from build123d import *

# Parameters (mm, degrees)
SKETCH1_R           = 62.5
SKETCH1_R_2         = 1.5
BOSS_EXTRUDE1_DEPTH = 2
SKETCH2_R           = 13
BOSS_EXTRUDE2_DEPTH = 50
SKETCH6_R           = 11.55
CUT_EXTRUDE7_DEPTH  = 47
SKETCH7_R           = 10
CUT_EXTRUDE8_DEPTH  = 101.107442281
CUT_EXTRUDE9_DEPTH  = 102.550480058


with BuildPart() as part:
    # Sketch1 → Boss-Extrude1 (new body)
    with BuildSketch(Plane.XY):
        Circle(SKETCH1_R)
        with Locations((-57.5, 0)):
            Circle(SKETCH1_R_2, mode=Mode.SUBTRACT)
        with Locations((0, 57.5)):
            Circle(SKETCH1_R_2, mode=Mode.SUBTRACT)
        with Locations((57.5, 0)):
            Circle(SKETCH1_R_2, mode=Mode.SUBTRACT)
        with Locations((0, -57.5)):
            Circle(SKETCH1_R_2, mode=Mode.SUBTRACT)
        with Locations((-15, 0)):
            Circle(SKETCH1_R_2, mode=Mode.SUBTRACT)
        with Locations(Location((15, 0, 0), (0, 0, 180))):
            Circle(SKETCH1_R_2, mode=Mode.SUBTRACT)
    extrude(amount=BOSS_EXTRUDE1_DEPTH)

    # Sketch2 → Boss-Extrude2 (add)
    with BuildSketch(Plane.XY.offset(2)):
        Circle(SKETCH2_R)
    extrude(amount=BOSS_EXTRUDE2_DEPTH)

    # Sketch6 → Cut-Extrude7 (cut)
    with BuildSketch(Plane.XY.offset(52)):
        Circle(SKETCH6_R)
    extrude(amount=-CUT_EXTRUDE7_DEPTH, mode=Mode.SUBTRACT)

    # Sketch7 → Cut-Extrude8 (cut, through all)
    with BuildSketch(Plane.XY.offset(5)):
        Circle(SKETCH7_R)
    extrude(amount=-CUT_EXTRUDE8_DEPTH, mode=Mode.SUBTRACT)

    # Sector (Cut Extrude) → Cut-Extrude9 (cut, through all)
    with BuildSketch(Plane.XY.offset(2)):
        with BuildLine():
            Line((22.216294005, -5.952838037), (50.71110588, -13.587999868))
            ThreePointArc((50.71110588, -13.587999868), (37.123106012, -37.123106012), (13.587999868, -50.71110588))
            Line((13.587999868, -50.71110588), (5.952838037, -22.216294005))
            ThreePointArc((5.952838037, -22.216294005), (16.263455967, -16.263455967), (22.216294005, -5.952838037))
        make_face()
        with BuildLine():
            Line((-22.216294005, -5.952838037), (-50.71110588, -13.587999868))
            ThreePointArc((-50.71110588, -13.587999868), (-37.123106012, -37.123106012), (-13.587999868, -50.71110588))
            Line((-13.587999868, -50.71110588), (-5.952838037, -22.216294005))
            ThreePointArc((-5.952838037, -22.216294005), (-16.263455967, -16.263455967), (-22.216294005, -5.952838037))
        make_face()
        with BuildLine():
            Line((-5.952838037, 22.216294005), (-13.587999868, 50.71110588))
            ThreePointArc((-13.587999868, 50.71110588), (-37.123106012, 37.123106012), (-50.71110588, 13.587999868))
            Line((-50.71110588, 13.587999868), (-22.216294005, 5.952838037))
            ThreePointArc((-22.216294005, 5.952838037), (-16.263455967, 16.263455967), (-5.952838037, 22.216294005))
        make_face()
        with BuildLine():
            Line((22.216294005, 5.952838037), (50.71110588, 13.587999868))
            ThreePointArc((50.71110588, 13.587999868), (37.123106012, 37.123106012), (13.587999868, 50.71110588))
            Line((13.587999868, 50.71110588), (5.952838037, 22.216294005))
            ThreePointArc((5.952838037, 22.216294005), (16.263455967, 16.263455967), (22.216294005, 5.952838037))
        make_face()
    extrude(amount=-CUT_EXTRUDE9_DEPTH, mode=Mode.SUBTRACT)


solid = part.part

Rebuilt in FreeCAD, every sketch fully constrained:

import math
import FreeCAD as App
import Part
import Sketcher

V = App.Vector
Q = App.Units.Quantity

doc = App.newDocument("Part")
body = doc.addObject("PartDesign::Body", "Body")

sketch1 = doc.addObject("Sketcher::SketchObject", "Sketch")
body.addObject(sketch1)
sketch1.AttachmentSupport = (doc.XY_Plane, [""])
sketch1.MapMode = "FlatFace"
sketch1.addGeometry(Part.Circle(V(0, 0, 0), V(0, 0, 1), 62.5), False)
sketch1.addGeometry(Part.Circle(V(0, -57.5, 0), V(0, 0, 1), 1.5), False)
sketch1.addGeometry(Part.Circle(V(-57.5, 0, 0), V(0, 0, 1), 1.5), False)
sketch1.addGeometry(Part.Circle(V(-15, 0, 0), V(0, 0, 1), 1.5), False)
sketch1.addGeometry(Part.Circle(V(15, 0, 0), V(0, 0, 1), 1.5), False)
sketch1.addGeometry(Part.Circle(V(57.5, 0, 0), V(0, 0, 1), 1.5), False)
sketch1.addGeometry(Part.Circle(V(0, 57.5, 0), V(0, 0, 1), 1.5), False)
sketch1.addConstraint(Sketcher.Constraint("Coincident", 0, 3, -1, 1))
sketch1.addConstraint(Sketcher.Constraint("Equal", 1, 2))
sketch1.addConstraint(Sketcher.Constraint("Equal", 2, 3))
sketch1.addConstraint(Sketcher.Constraint("Equal", 3, 4))
sketch1.addConstraint(Sketcher.Constraint("Equal", 4, 5))
sketch1.addConstraint(Sketcher.Constraint("Equal", 5, 6))
sketch1.addConstraint(Sketcher.Constraint("Symmetric", 3, 3, 4, 3, -1, 1))
sketch1.addConstraint(Sketcher.Constraint("Symmetric", 2, 3, 5, 3, -1, 1))
sketch1.addConstraint(Sketcher.Constraint("Symmetric", 1, 3, 6, 3, -1, 1))
sketch1.addConstraint(Sketcher.Constraint("PointOnObject", 1, 3, -2))
sketch1.addConstraint(Sketcher.Constraint("PointOnObject", 2, 3, -1))
sketch1.addConstraint(Sketcher.Constraint("PointOnObject", 3, 3, -1))
sketch1.addConstraint(Sketcher.Constraint("Diameter", 0, Q("125 mm")))
sketch1.addConstraint(Sketcher.Constraint("Diameter", 1, Q("3 mm")))
sketch1.addConstraint(Sketcher.Constraint("DistanceX", 3, 3, -1, 1, Q("15 mm")))
sketch1.addConstraint(Sketcher.Constraint("DistanceX", 2, 3, 5, 3, Q("115 mm")))
sketch1.addConstraint(Sketcher.Constraint("DistanceY", 1, 3, -1, 1, Q("57.5 mm")))
pad1 = doc.addObject("PartDesign::Pad", "Pad")
body.addObject(pad1)
pad1.Profile = sketch1
pad1.Length = 2

sketch2 = doc.addObject("Sketcher::SketchObject", "Sketch001")
body.addObject(sketch2)
sketch2.AttachmentSupport = (doc.XY_Plane, [""])
sketch2.MapMode = "FlatFace"
sketch2.AttachmentOffset = App.Placement(V(0, 0, 2), App.Rotation())
sketch2.addGeometry(Part.Circle(V(0, 0, 0), V(0, 0, 1), 13), False)
sketch2.addConstraint(Sketcher.Constraint("Coincident", 0, 3, -1, 1))
sketch2.addConstraint(Sketcher.Constraint("Diameter", 0, Q("26 mm")))
pad2 = doc.addObject("PartDesign::Pad", "Pad001")
body.addObject(pad2)
pad2.Profile = sketch2
pad2.Length = 50

sketch3 = doc.addObject("Sketcher::SketchObject", "Sketch002")
body.addObject(sketch3)
sketch3.AttachmentSupport = (doc.XY_Plane, [""])
sketch3.MapMode = "FlatFace"
sketch3.AttachmentOffset = App.Placement(V(0, 0, 52), App.Rotation())
sketch3.addGeometry(Part.Circle(V(0, 0, 0), V(0, 0, 1), 11.55), False)
sketch3.addConstraint(Sketcher.Constraint("Coincident", 0, 3, -1, 1))
sketch3.addConstraint(Sketcher.Constraint("Diameter", 0, Q("23.1 mm")))
pocket1 = doc.addObject("PartDesign::Pocket", "Pocket")
body.addObject(pocket1)
pocket1.Profile = sketch3
pocket1.Length = 47

sketch4 = doc.addObject("Sketcher::SketchObject", "Sketch003")
body.addObject(sketch4)
sketch4.AttachmentSupport = (doc.XY_Plane, [""])
sketch4.MapMode = "FlatFace"
sketch4.AttachmentOffset = App.Placement(V(0, 0, 5), App.Rotation())
sketch4.addGeometry(Part.Circle(V(0, 0, 0), V(0, 0, 1), 10), False)
sketch4.addConstraint(Sketcher.Constraint("Coincident", 0, 3, -1, 1))
sketch4.addConstraint(Sketcher.Constraint("Diameter", 0, Q("20 mm")))
pocket2 = doc.addObject("PartDesign::Pocket", "Pocket001")
body.addObject(pocket2)
pocket2.Profile = sketch4
pocket2.Type = "ThroughAll"

sketch5 = doc.addObject("Sketcher::SketchObject", "Sketch004")
body.addObject(sketch5)
sketch5.AttachmentSupport = (doc.XY_Plane, [""])
sketch5.MapMode = "FlatFace"
sketch5.AttachmentOffset = App.Placement(V(0, 0, 2), App.Rotation())
sketch5.addGeometry(Part.LineSegment(V(50.711106, -13.588, 0), V(22.216294, -5.952838, 0)), False)
sketch5.addGeometry(Part.ArcOfCircle(Part.Circle(V(0, 0, 0), V(0, 0, 1), 23), math.radians(-75), math.radians(-15)), False)
sketch5.addGeometry(Part.LineSegment(V(5.952838, -22.216294, 0), V(13.588, -50.711106, 0)), False)
sketch5.addGeometry(Part.ArcOfCircle(Part.Circle(V(0, 0, 0), V(0, 0, 1), 52.5), math.radians(-75), math.radians(-15)), False)
sketch5.addGeometry(Part.LineSegment(V(-22.216294, -5.952838, 0), V(-50.711106, -13.588, 0)), False)
sketch5.addGeometry(Part.ArcOfCircle(Part.Circle(V(0, 0, 0), V(0, 0, 1), 52.5), math.radians(-165), math.radians(-105)), False)
sketch5.addGeometry(Part.LineSegment(V(-13.588, -50.711106, 0), V(-5.952838, -22.216294, 0)), False)
sketch5.addGeometry(Part.ArcOfCircle(Part.Circle(V(0, 0, 0), V(0, 0, 1), 23), math.radians(-165), math.radians(-105)), False)
sketch5.addGeometry(Part.LineSegment(V(-5.952838, 22.216294, 0), V(-13.588, 50.711106, 0)), False)
sketch5.addGeometry(Part.ArcOfCircle(Part.Circle(V(0, 0, 0), V(0, 0, 1), 52.5), math.radians(105), math.radians(165)), False)
sketch5.addGeometry(Part.LineSegment(V(-50.711106, 13.588, 0), V(-22.216294, 5.952838, 0)), False)
sketch5.addGeometry(Part.ArcOfCircle(Part.Circle(V(0, 0, 0), V(0, 0, 1), 23), math.radians(105), math.radians(165)), False)
sketch5.addGeometry(Part.LineSegment(V(22.216294, 5.952838, 0), V(50.711106, 13.588, 0)), False)
sketch5.addGeometry(Part.ArcOfCircle(Part.Circle(V(0, 0, 0), V(0, 0, 1), 52.5), math.radians(15), math.radians(75)), False)
sketch5.addGeometry(Part.LineSegment(V(13.588, 50.711106, 0), V(5.952838, 22.216294, 0)), False)
sketch5.addGeometry(Part.ArcOfCircle(Part.Circle(V(0, 0, 0), V(0, 0, 1), 23), math.radians(15), math.radians(75)), False)
sketch5.addConstraint(Sketcher.Constraint("Coincident", 0, 2, 1, 2))
sketch5.addConstraint(Sketcher.Constraint("Coincident", 1, 1, 2, 1))
sketch5.addConstraint(Sketcher.Constraint("Coincident", 2, 2, 3, 1))
sketch5.addConstraint(Sketcher.Constraint("Coincident", 3, 2, 0, 1))
sketch5.addConstraint(Sketcher.Constraint("Coincident", 4, 2, 5, 1))
sketch5.addConstraint(Sketcher.Constraint("Coincident", 5, 2, 6, 1))
sketch5.addConstraint(Sketcher.Constraint("Coincident", 6, 2, 7, 2))
sketch5.addConstraint(Sketcher.Constraint("Coincident", 7, 1, 4, 1))
sketch5.addConstraint(Sketcher.Constraint("Coincident", 8, 2, 9, 1))
sketch5.addConstraint(Sketcher.Constraint("Coincident", 9, 2, 10, 1))
sketch5.addConstraint(Sketcher.Constraint("Coincident", 10, 2, 11, 2))
sketch5.addConstraint(Sketcher.Constraint("Coincident", 11, 1, 8, 1))
sketch5.addConstraint(Sketcher.Constraint("Coincident", 12, 2, 13, 1))
sketch5.addConstraint(Sketcher.Constraint("Coincident", 13, 2, 14, 1))
sketch5.addConstraint(Sketcher.Constraint("Coincident", 14, 2, 15, 2))
sketch5.addConstraint(Sketcher.Constraint("Coincident", 15, 1, 12, 1))
sketch5.addConstraint(Sketcher.Constraint("Coincident", 1, 3, -1, 1))
sketch5.addConstraint(Sketcher.Constraint("Coincident", 3, 3, -1, 1))
sketch5.addConstraint(Sketcher.Constraint("Coincident", 5, 3, -1, 1))
sketch5.addConstraint(Sketcher.Constraint("Coincident", 7, 3, -1, 1))
sketch5.addConstraint(Sketcher.Constraint("Coincident", 9, 3, -1, 1))
sketch5.addConstraint(Sketcher.Constraint("Coincident", 11, 3, -1, 1))
sketch5.addConstraint(Sketcher.Constraint("Coincident", 13, 3, -1, 1))
sketch5.addConstraint(Sketcher.Constraint("Coincident", 15, 3, -1, 1))
sketch5.addConstraint(Sketcher.Constraint("Equal", 3, 5))
sketch5.addConstraint(Sketcher.Constraint("Equal", 1, 7))
sketch5.addConstraint(Sketcher.Constraint("Equal", 5, 9))
sketch5.addConstraint(Sketcher.Constraint("Equal", 7, 11))
sketch5.addConstraint(Sketcher.Constraint("Equal", 9, 13))
sketch5.addConstraint(Sketcher.Constraint("Equal", 11, 15))
sketch5.addConstraint(Sketcher.Constraint("Perpendicular", 2, 4))
sketch5.addConstraint(Sketcher.Constraint("Perpendicular", 0, 6))
sketch5.addConstraint(Sketcher.Constraint("Perpendicular", 4, 8))
sketch5.addConstraint(Sketcher.Constraint("Perpendicular", 6, 10))
sketch5.addConstraint(Sketcher.Constraint("Perpendicular", 8, 12))
sketch5.addConstraint(Sketcher.Constraint("Perpendicular", 10, 14))
sketch5.addConstraint(Sketcher.Constraint("Horizontal", 3, 2, 4, 2))
sketch5.addConstraint(Sketcher.Constraint("Horizontal", 2, 2, 5, 2))
sketch5.addConstraint(Sketcher.Constraint("Horizontal", 1, 1, 6, 2))
sketch5.addConstraint(Sketcher.Constraint("Horizontal", 9, 2, 12, 2))
sketch5.addConstraint(Sketcher.Constraint("Horizontal", 8, 2, 13, 2))
sketch5.addConstraint(Sketcher.Constraint("Vertical", 5, 2, 8, 2))
sketch5.addConstraint(Sketcher.Constraint("Vertical", 4, 2, 9, 2))
sketch5.addConstraint(Sketcher.Constraint("Radius", 1, Q("23 mm")))
sketch5.addConstraint(Sketcher.Constraint("Radius", 3, Q("52.5 mm")))
sketch5.addConstraint(Sketcher.Constraint("Angle", 0, Q("165 deg")))
sketch5.addConstraint(Sketcher.Constraint("DistanceX", -1, 1, 2, 2, Q("13.588 mm")))
sketch5.addConstraint(Sketcher.Constraint("DistanceY", 3, 2, -1, 1, Q("13.588 mm")))
pocket3 = doc.addObject("PartDesign::Pocket", "Pocket002")
body.addObject(pocket3)
pocket3.Profile = sketch5
pocket3.Type = "ThroughAll"

doc.recompute()
